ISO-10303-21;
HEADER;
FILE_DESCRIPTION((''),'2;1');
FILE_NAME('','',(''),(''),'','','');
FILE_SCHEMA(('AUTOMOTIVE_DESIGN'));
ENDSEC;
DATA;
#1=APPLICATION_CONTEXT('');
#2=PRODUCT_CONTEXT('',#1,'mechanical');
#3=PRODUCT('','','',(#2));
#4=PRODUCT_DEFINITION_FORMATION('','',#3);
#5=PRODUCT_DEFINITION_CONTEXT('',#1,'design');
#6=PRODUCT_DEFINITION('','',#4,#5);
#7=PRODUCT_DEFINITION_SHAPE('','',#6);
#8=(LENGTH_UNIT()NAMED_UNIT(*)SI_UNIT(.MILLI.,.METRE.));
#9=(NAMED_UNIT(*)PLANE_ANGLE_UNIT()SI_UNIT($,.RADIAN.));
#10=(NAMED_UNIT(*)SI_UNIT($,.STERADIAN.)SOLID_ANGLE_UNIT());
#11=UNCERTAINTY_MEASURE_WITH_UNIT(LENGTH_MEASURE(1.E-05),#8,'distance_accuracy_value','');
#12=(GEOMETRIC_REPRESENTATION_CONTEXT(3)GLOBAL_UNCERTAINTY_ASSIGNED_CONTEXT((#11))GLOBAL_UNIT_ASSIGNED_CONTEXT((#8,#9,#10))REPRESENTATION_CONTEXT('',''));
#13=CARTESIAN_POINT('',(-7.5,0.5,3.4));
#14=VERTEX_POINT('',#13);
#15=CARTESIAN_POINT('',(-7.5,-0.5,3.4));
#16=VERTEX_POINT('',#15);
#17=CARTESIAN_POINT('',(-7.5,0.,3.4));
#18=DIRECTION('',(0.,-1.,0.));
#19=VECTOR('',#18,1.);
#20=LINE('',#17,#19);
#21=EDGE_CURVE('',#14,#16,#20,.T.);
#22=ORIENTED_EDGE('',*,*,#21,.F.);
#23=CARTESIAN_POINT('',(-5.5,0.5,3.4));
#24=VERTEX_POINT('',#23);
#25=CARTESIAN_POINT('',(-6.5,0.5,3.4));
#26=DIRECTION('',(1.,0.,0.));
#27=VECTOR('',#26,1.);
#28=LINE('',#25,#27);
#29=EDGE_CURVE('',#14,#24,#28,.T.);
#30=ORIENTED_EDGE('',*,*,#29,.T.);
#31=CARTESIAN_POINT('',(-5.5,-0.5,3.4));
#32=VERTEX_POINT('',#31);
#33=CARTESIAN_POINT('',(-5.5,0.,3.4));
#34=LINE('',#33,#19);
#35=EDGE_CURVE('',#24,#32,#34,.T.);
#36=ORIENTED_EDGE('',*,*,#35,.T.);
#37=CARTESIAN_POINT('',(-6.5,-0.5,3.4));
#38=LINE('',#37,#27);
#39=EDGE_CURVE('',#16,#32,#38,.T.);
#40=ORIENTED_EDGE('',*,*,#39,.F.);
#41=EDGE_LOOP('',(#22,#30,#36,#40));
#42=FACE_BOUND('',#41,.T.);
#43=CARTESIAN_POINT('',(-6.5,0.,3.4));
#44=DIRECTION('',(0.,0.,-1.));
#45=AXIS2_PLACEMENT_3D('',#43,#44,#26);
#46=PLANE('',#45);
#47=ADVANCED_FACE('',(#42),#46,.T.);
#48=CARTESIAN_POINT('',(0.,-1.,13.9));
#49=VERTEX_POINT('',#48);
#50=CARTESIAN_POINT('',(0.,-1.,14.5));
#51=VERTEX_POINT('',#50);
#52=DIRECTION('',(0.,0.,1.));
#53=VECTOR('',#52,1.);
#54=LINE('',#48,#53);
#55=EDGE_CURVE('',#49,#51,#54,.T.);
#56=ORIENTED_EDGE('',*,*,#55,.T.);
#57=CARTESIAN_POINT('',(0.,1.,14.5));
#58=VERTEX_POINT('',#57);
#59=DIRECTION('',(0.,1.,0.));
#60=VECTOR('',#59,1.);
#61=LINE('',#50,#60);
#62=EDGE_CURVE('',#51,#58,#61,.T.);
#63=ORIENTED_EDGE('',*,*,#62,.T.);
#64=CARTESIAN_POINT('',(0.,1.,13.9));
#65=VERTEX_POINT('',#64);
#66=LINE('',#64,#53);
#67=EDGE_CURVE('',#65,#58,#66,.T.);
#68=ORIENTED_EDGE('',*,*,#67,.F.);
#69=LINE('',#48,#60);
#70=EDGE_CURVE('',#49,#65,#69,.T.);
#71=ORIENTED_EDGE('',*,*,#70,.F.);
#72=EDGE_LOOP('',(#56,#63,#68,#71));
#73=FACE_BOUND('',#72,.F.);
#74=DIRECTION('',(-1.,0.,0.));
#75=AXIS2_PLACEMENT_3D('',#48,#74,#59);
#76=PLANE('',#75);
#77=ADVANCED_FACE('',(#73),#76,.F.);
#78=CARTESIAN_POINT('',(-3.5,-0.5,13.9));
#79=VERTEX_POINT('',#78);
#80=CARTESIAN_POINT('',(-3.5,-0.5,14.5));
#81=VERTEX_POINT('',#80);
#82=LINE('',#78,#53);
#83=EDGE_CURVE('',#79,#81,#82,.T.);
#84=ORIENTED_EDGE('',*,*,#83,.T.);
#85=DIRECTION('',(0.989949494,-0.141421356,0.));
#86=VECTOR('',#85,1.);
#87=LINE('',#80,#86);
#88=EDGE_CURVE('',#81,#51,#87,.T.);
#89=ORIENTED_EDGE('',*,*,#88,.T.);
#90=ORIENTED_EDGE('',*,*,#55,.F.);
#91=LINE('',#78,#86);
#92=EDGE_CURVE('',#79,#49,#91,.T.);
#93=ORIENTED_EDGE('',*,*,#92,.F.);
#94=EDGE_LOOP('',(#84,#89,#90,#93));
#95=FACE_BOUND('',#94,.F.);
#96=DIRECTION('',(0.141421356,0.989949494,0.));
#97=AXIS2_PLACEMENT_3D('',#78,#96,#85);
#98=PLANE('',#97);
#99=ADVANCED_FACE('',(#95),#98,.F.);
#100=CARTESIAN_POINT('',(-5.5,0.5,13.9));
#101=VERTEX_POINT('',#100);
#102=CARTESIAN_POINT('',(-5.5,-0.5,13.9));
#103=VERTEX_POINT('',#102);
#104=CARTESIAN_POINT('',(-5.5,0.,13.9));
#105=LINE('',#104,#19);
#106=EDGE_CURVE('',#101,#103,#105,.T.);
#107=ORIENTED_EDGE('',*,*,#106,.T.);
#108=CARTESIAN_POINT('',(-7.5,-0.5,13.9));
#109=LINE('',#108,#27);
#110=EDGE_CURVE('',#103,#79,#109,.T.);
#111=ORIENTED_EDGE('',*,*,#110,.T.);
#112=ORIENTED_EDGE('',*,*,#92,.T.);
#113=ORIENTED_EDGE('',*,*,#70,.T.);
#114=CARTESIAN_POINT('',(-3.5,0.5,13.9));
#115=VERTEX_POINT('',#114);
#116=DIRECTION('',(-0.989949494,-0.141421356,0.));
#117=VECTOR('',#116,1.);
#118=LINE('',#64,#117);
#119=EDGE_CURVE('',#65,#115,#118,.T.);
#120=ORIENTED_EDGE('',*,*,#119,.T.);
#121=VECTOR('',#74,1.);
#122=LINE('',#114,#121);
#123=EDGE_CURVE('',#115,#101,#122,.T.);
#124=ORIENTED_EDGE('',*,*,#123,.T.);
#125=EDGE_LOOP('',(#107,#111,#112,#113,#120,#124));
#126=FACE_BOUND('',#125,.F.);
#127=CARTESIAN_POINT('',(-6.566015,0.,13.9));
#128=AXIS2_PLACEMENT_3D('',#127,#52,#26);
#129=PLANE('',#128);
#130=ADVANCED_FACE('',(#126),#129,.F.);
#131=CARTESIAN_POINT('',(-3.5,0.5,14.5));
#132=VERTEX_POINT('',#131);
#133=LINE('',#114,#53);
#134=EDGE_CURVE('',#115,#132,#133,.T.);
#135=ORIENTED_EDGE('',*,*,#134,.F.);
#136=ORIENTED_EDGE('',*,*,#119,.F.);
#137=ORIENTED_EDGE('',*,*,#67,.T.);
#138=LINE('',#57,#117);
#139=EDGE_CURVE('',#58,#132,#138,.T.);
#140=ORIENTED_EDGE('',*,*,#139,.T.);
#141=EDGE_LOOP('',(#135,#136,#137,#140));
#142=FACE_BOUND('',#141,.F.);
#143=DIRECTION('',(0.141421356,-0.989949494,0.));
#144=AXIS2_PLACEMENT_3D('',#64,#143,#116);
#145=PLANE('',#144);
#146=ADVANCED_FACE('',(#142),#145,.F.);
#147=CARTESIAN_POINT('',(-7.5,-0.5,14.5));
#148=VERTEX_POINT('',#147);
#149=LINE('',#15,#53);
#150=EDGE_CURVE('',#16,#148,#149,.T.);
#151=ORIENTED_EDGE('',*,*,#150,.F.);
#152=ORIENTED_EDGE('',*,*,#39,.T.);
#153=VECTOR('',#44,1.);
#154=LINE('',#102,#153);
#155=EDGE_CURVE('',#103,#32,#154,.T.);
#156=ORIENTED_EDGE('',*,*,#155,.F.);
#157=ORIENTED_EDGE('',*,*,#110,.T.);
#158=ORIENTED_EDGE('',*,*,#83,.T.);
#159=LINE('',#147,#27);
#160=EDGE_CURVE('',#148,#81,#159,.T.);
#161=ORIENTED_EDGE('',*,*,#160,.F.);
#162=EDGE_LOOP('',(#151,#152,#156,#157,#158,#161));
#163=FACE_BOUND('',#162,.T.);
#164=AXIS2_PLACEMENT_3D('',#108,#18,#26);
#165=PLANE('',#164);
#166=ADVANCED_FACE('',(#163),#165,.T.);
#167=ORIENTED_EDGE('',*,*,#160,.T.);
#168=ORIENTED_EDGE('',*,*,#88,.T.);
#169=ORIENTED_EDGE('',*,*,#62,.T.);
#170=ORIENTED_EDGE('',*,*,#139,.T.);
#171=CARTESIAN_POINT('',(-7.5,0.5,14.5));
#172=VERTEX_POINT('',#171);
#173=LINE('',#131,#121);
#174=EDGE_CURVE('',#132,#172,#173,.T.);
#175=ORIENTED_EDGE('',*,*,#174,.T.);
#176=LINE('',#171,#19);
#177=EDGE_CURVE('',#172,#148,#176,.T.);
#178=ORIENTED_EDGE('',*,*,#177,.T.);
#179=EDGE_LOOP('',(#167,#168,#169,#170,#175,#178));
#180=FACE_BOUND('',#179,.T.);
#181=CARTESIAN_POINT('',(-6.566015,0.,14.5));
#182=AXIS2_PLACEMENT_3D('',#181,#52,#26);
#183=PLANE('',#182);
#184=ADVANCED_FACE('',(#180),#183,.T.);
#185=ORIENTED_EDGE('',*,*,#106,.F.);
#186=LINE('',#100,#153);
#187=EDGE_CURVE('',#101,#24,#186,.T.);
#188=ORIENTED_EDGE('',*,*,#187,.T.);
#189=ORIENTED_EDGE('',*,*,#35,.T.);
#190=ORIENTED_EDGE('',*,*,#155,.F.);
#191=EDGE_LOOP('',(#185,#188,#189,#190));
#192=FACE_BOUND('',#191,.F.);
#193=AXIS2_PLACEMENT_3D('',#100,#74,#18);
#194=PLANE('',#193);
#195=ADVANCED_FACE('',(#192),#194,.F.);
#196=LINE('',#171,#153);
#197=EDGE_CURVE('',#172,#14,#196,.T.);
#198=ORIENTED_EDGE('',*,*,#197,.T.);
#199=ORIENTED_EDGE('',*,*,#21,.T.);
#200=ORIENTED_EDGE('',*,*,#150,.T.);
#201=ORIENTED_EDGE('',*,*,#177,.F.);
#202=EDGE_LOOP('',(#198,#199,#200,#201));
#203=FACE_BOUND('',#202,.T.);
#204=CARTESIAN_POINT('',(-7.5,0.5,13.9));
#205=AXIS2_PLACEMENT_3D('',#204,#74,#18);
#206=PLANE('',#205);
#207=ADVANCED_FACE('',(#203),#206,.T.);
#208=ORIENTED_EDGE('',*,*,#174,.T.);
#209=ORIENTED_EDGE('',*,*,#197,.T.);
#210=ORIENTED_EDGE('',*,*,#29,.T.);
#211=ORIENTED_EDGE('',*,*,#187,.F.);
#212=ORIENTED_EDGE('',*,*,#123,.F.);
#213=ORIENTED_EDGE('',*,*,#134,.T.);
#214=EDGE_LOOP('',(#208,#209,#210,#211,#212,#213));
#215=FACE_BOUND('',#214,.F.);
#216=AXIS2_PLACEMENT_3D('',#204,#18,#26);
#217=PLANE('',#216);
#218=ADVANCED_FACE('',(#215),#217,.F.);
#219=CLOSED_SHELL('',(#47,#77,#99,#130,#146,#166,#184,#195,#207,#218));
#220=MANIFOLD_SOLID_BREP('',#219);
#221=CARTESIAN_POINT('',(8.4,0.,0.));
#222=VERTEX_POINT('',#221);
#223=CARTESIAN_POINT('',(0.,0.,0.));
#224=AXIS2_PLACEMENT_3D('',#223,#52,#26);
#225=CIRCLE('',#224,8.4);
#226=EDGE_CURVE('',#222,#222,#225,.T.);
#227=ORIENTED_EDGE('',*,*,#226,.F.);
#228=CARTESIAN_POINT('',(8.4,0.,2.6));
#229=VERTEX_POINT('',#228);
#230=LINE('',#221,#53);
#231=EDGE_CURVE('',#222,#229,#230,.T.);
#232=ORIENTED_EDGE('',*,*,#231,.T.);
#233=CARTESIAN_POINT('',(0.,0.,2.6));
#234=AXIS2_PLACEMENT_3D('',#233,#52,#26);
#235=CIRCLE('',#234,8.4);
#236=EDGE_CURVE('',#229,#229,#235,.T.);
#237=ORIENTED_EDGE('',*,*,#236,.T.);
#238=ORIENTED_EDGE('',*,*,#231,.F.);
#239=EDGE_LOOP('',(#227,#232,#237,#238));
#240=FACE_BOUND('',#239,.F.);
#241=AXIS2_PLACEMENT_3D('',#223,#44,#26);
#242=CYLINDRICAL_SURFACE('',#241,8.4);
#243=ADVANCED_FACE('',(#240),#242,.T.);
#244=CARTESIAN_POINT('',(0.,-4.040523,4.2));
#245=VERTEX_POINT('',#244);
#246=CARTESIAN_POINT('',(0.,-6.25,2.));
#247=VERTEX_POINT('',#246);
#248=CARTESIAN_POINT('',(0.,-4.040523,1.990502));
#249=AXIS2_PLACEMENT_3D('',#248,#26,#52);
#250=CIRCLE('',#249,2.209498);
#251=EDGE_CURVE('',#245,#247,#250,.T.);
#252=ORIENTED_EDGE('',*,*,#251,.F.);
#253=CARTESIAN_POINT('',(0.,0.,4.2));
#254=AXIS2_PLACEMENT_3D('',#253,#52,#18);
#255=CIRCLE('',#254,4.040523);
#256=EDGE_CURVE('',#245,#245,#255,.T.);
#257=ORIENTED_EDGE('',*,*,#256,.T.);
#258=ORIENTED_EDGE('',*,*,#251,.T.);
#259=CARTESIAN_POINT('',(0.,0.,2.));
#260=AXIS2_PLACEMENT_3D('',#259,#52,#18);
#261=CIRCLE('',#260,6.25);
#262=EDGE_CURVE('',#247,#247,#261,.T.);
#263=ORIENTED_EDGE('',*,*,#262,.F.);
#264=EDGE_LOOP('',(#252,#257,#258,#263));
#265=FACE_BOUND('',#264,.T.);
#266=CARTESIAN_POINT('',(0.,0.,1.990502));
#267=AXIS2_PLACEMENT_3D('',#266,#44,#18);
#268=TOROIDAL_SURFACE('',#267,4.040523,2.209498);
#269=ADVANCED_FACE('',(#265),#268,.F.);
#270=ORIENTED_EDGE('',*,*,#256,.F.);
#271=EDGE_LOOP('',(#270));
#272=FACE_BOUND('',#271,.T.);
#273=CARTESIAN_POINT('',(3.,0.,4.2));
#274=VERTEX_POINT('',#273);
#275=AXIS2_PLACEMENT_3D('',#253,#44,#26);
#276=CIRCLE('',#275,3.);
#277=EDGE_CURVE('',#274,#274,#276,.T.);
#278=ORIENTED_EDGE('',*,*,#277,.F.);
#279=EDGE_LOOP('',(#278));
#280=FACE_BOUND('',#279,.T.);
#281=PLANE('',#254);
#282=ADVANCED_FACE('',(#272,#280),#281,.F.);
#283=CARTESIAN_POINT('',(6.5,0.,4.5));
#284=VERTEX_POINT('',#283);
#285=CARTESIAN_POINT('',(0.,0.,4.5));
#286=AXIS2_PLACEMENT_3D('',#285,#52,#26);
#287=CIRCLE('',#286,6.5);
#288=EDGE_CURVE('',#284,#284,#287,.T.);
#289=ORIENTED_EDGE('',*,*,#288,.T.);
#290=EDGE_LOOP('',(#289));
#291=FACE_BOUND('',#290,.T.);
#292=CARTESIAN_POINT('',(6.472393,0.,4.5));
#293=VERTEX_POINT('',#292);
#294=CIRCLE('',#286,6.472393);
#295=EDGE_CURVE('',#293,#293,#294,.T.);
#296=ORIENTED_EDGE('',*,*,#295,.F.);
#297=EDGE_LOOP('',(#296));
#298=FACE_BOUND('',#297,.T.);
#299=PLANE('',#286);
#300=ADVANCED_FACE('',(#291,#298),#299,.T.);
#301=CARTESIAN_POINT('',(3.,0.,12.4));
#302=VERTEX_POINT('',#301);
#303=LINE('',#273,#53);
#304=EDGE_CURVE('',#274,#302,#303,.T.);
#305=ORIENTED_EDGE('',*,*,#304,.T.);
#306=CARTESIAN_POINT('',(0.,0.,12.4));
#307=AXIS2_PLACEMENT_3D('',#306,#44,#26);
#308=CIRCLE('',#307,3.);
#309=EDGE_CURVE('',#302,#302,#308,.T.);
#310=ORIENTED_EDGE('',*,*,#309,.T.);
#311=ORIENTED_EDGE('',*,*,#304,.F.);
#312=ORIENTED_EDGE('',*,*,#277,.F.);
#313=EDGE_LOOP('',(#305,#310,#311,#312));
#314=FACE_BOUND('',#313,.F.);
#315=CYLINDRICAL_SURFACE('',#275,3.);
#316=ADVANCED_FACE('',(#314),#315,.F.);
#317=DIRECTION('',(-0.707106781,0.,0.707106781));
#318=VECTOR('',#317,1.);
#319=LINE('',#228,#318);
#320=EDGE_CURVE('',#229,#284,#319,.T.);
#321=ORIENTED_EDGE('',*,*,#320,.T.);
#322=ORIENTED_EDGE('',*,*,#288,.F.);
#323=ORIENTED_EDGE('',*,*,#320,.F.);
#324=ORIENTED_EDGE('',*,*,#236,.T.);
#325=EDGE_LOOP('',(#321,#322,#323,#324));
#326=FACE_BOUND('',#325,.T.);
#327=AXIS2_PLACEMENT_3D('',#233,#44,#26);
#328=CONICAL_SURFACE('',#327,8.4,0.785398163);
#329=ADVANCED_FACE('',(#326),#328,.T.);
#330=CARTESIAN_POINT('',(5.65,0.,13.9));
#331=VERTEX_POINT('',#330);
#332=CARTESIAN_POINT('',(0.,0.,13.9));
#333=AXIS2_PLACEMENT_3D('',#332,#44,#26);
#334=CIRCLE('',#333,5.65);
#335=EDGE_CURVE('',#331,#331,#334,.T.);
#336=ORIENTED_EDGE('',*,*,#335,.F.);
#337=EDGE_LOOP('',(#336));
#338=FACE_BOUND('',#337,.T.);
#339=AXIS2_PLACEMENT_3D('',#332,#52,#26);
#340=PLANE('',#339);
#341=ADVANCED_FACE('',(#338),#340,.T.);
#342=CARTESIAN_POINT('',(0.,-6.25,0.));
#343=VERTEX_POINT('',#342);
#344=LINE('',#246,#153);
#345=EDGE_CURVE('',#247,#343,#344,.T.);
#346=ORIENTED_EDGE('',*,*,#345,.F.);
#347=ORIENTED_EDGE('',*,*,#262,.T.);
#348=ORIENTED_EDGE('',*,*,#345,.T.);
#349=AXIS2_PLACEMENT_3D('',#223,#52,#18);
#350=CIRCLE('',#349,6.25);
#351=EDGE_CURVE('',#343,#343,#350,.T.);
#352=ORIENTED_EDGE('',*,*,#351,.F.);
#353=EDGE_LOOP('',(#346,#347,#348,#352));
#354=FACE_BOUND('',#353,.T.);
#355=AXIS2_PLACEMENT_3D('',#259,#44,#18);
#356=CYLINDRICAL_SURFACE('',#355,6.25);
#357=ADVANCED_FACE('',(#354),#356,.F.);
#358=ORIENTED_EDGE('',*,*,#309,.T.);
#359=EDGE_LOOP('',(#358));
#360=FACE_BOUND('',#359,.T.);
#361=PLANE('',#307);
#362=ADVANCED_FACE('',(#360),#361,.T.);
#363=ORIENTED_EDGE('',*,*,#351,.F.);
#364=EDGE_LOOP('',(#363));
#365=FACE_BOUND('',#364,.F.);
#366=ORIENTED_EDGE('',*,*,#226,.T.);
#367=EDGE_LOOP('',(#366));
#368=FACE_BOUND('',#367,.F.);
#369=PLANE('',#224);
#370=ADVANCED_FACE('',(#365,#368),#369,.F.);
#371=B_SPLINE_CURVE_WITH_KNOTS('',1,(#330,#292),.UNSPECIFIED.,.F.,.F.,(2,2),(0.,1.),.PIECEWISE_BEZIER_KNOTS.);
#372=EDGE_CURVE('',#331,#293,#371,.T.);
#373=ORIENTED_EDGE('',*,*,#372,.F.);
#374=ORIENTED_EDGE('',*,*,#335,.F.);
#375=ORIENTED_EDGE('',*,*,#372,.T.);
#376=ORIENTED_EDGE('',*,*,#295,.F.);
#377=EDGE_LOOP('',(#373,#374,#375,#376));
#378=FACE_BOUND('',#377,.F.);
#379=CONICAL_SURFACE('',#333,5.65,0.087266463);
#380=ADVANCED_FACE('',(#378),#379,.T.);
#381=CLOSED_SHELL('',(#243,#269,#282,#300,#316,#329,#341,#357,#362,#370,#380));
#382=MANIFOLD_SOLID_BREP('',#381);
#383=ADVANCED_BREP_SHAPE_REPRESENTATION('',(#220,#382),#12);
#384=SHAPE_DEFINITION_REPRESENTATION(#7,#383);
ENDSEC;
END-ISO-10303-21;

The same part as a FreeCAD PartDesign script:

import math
import FreeCAD as App
import Part
import Sketcher

V = App.Vector


def edges_at(feature, points):
    """Names of the edges that pass closest to the given points."""
    edges = feature.Shape.Edges
    near = lambda p: min(range(len(edges)), key=lambda i: edges[i].distToShape(Part.Vertex(*p))[0])
    return sorted({f"Edge{near(p) + 1}" for p in points})


def add_polygon(sketch, points):
    """Adds a closed chain of lines whose ends are joined by coincident constraints."""
    first, n = sketch.GeometryCount, len(points)
    for a, b in zip(points, points[1:] + points[:1]):
        sketch.addGeometry(Part.LineSegment(App.Vector(*a, 0), App.Vector(*b, 0)), False)
    for i in range(n):
        sketch.addConstraint(Sketcher.Constraint("Coincident", first + i, 2, first + (i + 1) % n, 1))

doc = App.newDocument("Part")
body = doc.addObject("PartDesign::Body", "Body")

# Sketch on XY plane
sketch1 = doc.addObject("Sketcher::SketchObject", "Sketch")
body.addObject(sketch1)
sketch1.AttachmentSupport = (doc.XY_Plane, [""])
sketch1.MapMode = "FlatFace"
sketch1.addGeometry(Part.Circle(V(0, 0, 0), V(0, 0, 1), 8), False)
sketch1.addConstraint([
    Sketcher.Constraint("Coincident", 0, 3, -1, 1),
    Sketcher.Constraint("Diameter", 0, 16.8),
])
pad1 = doc.addObject("PartDesign::Pad", "Pad")
body.addObject(pad1)
pad1.Profile = sketch1
pad1.Length = 4.5

# Sketch on XY plane
sketch2 = doc.addObject("Sketcher::SketchObject", "Sketch001")
body.addObject(sketch2)
sketch2.AttachmentSupport = (doc.XY_Plane, [""])
sketch2.MapMode = "FlatFace"
sketch2.AttachmentOffset = App.Placement(V(0, 0, 13.9), App.Rotation())
sketch2.addGeometry(Part.Circle(V(0, 0, 0), V(0, 0, 1), 6), False)
sketch2.addConstraint([
    Sketcher.Constraint("Coincident", 0, 3, -1, 1),
    Sketcher.Constraint("Diameter", 0, 11.3),
])
pad2 = doc.addObject("PartDesign::Pad", "Pad001")
body.addObject(pad2)
pad2.Profile = sketch2
pad2.Length = 9.4
pad2.Reversed = True
pad2.TaperAngle = 5
doc.recompute()

chamfer = doc.addObject("PartDesign::Chamfer", "Chamfer")
body.addObject(chamfer)
chamfer.Base = (pad2, edges_at(pad2, [(-8.4, 0, 4.5)]))
chamfer.Size = 1.9

# Sketch on YZ plane
sketch3 = doc.addObject("Sketcher::SketchObject", "Sketch002")
body.addObject(sketch3)
sketch3.AttachmentSupport = (doc.YZ_Plane, [""])
sketch3.MapMode = "FlatFace"
sketch3.addGeometry([
    Part.LineSegment(V(-6.2, 2, 0), V(-6.2, 0, 0)),  # 0
    Part.LineSegment(V(-6.2, 0, 0), V(0, 0, 0)),  # 1
    Part.LineSegment(V(0, 0, 0), V(0, 4.2, 0)),  # 2
    Part.LineSegment(V(0, 4.2, 0), V(-4, 4.2, 0)),  # 3
    Part.ArcOfCircle(Part.Circle(V(-4, 2, 0), V(0, 0, 1), 2.2), math.radians(90), math.radians(180)),  # 4
], False)
sketch3.addConstraint([
    Sketcher.Constraint("Coincident", 0, 2, 1, 1),
    Sketcher.Constraint("Coincident", 1, 2, 2, 1),
    Sketcher.Constraint("Coincident", 2, 2, 3, 1),
    Sketcher.Constraint("Tangent", 3, 2, 4, 1),
    Sketcher.Constraint("Coincident", 4, 2, 0, 1),
    Sketcher.Constraint("Vertical", 0),
    Sketcher.Constraint("Horizontal", 1),
    Sketcher.Constraint("Vertical", 2),
    Sketcher.Constraint("Horizontal", 3),
    Sketcher.Constraint("Coincident", 1, 2, -1, 1),
    Sketcher.Constraint("DistanceY", 0, 2, 0, 1, 2.0),
    Sketcher.Constraint("DistanceY", 2, 1, 2, 2, 4.2),
    Sketcher.Constraint("DistanceX", 1, 1, 1, 2, 6.25),
    Sketcher.Constraint("Radius", 4, 2.209498),
])
groove = doc.addObject("PartDesign::Groove", "Groove")
body.addObject(groove)
groove.Profile = sketch3
groove.ReferenceAxis = (sketch3, ["V_Axis"])
groove.Angle = 360

# Sketch on XY plane
sketch4 = doc.addObject("Sketcher::SketchObject", "Sketch003")
body.addObject(sketch4)
sketch4.AttachmentSupport = (doc.XY_Plane, [""])
sketch4.MapMode = "FlatFace"
sketch4.AttachmentOffset = App.Placement(V(0, 0, 4.2), App.Rotation())
sketch4.addGeometry(Part.Circle(V(0, 0, 0), V(0, 0, 1), 3), False)
sketch4.addConstraint([
    Sketcher.Constraint("Coincident", 0, 3, -1, 1),
    Sketcher.Constraint("Diameter", 0, 6.0),
])
pocket1 = doc.addObject("PartDesign::Pocket", "Pocket")
body.addObject(pocket1)
pocket1.Profile = sketch4
pocket1.Length = 8.2
pocket1.Reversed = True
body2 = doc.addObject("PartDesign::Body", "Body001")

# Sketch on XY plane
sketch5 = doc.addObject("Sketcher::SketchObject", "Sketch004")
body2.addObject(sketch5)
sketch5.AttachmentSupport = (doc.getObject("XY_Plane001"), [""])
sketch5.MapMode = "FlatFace"
sketch5.AttachmentOffset = App.Placement(V(0, 0, 13.9), App.Rotation())
add_polygon(sketch5, [(-7.5, 0.5), (-7.5, -0.5), (-3.5, -0.5), (0, -1), (0, 1), (-3.5, 0.5)])  # lines 0-5
sketch5.addConstraint([
    Sketcher.Constraint("Vertical", 0),
    Sketcher.Constraint("Horizontal", 1),
    Sketcher.Constraint("Vertical", 3),
    Sketcher.Constraint("Horizontal", 5),
    Sketcher.Constraint("Symmetric", 2, 2, 3, 2, -1, 1),
    Sketcher.Constraint("Symmetric", 1, 2, 4, 2, -1),
    Sketcher.Constraint("DistanceX", 1, 1, 1, 2, 4.0),
    Sketcher.Constraint("DistanceY", 0, 2, 0, 1, 1.0),
    Sketcher.Constraint("DistanceY", 3, 1, 3, 2, 2.0),
    Sketcher.Constraint("DistanceX", 0, 2, -1, 1, 7.5),
])
pad3 = doc.addObject("PartDesign::Pad", "Pad002")
body2.addObject(pad3)
pad3.Profile = sketch5
pad3.Length = 0.6

# Sketch on XY plane
sketch6 = doc.addObject("Sketcher::SketchObject", "Sketch005")
body2.addObject(sketch6)
sketch6.AttachmentSupport = (doc.getObject("XY_Plane001"), [""])
sketch6.MapMode = "FlatFace"
sketch6.AttachmentOffset = App.Placement(V(0, 0, 13.9), App.Rotation())
add_polygon(sketch6, [(-7.5, -0.5), (-7.5, 0.5), (-5.5, 0.5), (-5.5, -0.5)])  # lines 0-3
sketch6.addConstraint([
    Sketcher.Constraint("Vertical", 0),
    Sketcher.Constraint("Horizontal", 1),
    Sketcher.Constraint("Vertical", 2),
    Sketcher.Constraint("Horizontal", 3),
    Sketcher.Constraint("DistanceX", 1, 1, 1, 2, 2.0),
    Sketcher.Constraint("DistanceY", 0, 1, 0, 2, 1.0),
    Sketcher.Constraint("DistanceX", 0, 2, -1, 1, 7.5),
    Sketcher.Constraint("DistanceY", -1, 1, 0, 2, 0.5),
])
pad4 = doc.addObject("PartDesign::Pad", "Pad003")
body2.addObject(pad4)
pad4.Profile = sketch6
pad4.Length = 10.5
pad4.Reversed = True

doc.recompute()
